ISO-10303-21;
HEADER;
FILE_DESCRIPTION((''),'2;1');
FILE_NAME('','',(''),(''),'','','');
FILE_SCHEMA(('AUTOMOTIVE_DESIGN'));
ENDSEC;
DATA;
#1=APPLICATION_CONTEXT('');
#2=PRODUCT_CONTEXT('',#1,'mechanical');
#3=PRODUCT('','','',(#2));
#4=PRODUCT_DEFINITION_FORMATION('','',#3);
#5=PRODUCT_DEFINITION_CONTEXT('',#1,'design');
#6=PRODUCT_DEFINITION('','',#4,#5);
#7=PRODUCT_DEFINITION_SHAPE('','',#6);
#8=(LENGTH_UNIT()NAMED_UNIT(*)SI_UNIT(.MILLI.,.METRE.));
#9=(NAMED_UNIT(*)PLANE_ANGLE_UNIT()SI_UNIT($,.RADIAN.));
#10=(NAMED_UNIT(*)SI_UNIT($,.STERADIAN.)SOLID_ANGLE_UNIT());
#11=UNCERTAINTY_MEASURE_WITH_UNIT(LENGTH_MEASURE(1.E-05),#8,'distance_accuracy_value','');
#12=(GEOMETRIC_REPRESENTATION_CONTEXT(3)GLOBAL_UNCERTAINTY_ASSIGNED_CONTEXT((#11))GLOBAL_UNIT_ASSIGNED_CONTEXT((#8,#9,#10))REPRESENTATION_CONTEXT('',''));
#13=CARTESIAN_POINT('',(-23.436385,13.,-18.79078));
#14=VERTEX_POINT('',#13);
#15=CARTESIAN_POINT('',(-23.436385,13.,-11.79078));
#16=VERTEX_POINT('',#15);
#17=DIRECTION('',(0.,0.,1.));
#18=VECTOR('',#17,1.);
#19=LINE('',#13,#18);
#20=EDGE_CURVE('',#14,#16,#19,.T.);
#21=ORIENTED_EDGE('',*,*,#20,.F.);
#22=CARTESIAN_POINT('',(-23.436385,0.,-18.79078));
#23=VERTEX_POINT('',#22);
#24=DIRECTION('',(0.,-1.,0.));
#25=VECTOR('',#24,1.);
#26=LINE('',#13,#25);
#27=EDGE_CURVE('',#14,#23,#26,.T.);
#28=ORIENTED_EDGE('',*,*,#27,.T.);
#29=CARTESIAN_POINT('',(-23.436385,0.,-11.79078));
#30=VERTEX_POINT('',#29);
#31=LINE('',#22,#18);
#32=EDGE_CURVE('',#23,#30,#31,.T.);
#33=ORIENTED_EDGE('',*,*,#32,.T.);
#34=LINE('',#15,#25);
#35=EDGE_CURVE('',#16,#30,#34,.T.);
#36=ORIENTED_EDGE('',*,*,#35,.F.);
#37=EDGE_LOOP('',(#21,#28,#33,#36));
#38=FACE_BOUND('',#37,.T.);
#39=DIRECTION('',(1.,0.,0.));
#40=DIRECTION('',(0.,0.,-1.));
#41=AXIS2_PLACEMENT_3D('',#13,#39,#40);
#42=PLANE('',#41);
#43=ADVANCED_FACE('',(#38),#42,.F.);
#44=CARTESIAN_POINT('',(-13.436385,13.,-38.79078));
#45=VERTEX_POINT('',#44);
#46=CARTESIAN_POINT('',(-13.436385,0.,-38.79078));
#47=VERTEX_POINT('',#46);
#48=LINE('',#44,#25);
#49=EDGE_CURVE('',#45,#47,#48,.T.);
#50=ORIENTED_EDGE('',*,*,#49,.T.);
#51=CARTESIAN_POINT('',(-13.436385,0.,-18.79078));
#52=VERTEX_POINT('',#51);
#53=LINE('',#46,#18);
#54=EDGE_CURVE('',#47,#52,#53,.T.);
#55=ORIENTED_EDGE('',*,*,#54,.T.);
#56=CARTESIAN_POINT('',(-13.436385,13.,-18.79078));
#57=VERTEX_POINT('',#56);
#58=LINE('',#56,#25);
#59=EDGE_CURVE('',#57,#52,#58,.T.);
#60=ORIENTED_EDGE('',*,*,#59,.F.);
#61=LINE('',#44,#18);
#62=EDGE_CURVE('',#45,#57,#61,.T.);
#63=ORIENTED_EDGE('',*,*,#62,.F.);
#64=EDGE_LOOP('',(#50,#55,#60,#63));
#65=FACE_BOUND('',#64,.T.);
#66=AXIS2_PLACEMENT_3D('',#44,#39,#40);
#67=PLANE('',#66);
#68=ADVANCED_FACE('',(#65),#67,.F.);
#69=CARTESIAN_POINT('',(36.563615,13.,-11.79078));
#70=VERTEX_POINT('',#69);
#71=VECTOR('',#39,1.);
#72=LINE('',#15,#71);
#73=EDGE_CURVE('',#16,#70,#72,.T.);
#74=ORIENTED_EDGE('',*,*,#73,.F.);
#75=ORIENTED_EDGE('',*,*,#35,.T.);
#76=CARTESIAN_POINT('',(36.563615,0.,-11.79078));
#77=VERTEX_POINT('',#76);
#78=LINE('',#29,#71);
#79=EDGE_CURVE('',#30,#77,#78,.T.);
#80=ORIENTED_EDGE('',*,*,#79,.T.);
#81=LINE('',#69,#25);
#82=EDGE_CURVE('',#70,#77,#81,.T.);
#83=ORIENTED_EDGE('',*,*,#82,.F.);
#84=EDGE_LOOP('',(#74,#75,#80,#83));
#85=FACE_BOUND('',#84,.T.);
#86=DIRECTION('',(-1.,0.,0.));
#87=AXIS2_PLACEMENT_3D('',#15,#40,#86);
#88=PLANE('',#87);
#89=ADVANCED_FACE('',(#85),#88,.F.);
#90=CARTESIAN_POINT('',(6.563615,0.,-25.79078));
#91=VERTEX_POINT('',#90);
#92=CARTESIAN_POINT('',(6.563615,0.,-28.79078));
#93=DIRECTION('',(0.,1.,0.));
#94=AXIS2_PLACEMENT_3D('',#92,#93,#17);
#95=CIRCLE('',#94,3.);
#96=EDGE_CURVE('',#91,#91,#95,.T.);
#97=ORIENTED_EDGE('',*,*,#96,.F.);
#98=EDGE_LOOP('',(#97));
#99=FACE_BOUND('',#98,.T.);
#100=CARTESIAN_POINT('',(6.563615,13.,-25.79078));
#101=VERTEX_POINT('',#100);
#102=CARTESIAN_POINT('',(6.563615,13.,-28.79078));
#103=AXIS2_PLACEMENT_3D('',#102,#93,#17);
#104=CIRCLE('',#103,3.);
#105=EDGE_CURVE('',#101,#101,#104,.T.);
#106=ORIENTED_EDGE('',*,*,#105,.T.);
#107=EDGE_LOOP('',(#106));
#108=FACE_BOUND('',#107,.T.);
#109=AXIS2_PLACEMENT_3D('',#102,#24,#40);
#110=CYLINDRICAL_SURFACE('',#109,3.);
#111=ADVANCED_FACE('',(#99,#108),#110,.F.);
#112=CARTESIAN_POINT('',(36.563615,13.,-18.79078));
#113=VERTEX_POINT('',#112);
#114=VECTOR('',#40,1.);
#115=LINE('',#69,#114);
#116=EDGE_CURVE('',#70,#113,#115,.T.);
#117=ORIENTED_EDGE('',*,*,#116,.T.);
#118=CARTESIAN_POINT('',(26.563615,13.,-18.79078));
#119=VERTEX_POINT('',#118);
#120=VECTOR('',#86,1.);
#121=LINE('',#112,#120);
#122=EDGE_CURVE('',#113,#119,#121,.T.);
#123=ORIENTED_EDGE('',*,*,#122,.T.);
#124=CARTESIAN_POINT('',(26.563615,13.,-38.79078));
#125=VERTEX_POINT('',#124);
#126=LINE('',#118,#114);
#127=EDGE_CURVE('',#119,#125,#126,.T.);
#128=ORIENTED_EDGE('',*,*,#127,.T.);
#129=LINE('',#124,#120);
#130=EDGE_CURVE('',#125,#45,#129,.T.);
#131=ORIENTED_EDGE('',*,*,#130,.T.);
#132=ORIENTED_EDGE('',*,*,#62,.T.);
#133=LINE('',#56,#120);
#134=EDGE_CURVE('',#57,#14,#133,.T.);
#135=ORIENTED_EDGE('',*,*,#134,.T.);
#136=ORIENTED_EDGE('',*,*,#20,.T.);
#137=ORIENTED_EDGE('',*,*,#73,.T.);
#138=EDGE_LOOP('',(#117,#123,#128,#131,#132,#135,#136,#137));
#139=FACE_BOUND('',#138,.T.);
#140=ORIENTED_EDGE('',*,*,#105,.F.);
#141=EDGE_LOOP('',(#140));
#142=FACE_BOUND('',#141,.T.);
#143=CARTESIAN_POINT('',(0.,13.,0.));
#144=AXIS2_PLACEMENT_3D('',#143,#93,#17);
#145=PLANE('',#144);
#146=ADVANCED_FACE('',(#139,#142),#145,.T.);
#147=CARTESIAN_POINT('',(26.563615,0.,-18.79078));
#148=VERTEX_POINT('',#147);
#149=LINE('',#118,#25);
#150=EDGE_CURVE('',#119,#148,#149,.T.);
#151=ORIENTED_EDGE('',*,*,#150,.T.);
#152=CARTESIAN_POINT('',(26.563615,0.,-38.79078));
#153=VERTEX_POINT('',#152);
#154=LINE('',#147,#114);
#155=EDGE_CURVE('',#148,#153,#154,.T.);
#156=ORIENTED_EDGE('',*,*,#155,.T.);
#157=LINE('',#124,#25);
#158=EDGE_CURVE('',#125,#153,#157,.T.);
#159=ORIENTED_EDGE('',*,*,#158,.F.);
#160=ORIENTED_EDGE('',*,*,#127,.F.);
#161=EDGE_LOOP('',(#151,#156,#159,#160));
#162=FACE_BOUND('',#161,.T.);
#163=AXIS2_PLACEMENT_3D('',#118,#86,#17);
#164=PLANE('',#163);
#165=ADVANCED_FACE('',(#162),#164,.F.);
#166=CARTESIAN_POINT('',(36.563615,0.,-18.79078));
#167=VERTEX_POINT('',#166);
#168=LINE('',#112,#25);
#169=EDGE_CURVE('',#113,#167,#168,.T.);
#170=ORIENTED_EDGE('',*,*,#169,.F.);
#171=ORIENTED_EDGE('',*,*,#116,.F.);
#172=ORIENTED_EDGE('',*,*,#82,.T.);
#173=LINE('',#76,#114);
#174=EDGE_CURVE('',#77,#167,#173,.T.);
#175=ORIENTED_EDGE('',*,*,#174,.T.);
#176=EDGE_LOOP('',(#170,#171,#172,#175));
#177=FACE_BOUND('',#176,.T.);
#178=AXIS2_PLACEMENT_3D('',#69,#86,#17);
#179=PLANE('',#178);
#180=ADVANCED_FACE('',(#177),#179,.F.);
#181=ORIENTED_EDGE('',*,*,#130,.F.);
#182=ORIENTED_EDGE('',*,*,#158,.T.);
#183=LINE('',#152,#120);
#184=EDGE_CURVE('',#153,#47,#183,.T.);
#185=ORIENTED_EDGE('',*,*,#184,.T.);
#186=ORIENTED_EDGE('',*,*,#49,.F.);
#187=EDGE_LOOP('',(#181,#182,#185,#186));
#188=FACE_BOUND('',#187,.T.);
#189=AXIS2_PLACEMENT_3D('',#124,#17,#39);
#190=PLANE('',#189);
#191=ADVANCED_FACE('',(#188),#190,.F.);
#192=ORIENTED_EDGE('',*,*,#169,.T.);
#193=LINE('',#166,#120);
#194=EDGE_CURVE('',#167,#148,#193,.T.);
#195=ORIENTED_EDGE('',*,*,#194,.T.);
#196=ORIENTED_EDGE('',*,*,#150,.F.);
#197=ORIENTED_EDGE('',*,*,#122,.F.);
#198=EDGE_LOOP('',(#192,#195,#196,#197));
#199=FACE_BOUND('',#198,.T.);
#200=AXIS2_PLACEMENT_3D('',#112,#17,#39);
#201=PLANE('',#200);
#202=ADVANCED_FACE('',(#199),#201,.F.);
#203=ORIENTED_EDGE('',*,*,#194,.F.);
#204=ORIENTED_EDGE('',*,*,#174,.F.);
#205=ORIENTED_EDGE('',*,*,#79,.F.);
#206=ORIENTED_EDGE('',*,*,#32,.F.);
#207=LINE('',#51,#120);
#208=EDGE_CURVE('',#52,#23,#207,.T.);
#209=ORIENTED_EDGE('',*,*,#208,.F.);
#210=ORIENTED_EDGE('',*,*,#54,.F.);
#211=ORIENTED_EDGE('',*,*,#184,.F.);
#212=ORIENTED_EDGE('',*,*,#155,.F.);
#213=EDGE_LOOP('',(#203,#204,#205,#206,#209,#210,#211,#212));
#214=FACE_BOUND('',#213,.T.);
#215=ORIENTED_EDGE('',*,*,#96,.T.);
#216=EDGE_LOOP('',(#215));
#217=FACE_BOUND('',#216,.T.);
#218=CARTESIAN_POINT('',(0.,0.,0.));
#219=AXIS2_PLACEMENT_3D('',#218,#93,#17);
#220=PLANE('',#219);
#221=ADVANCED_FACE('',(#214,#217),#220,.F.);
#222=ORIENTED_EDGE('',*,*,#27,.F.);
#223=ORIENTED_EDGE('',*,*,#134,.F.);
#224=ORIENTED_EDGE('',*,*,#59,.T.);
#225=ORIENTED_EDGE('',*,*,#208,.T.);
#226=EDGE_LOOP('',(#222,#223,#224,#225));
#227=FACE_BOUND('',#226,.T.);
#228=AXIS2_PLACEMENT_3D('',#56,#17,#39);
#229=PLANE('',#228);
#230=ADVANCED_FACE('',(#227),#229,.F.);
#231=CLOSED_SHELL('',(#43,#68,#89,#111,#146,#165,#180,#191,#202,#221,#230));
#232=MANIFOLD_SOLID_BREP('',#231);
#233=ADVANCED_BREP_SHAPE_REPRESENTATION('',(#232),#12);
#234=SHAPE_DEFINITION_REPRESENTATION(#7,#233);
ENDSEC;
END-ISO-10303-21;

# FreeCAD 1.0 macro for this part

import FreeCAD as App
import Part
import Sketcher

V = App.Vector


def add_polygon(sketch, points):
    """Adds a closed chain of lines whose ends are joined by coincident constraints."""
    first, n = sketch.GeometryCount, len(points)
    for a, b in zip(points, points[1:] + points[:1]):
        sketch.addGeometry(Part.LineSegment(App.Vector(*a, 0), App.Vector(*b, 0)), False)
    for i in range(n):
        sketch.addConstraint(Sketcher.Constraint("Coincident", first + i, 2, first + (i + 1) % n, 1))

doc = App.newDocument("Part")
params = doc.addObject("Spreadsheet::Sheet", "Params")
for row, (alias, value) in enumerate([
    ("sketch1_diameter", "6 mm"),
    ("sketch1_width", "60 mm"),
    ("sketch1_width2", "10 mm"),
    ("sketch1_height", "7 mm"),
    ("sketch1_height2", "20 mm"),
    ("pad1_length", "13 mm"),
], start=1):
    params.set(f"A{row}", alias)
    params.set(f"B{row}", "=" + value)
    params.setAlias(f"B{row}", alias)

body = doc.addObject("PartDesign::Body", "Body")

# Sketch on XZ plane
sketch1 = body.newObject("Sketcher::SketchObject", "Sketch")
sketch1.AttachmentSupport = (doc.getObject("XZ_Plane"), [""])
sketch1.MapMode = "FlatFace"
add_polygon(sketch1, [(-23.4, -11.8), (36.6, -11.8), (36.6, -18.8), (26.6, -18.8), (26.6, -38.8), (-13.4, -38.8), (-13.4, -18.8), (-23.4, -18.8)])  # lines 0-7
sketch1.addGeometry(Part.Circle(V(6.6, -28.8, 0), V(0, 0, 1), 3), False)  # 8
sketch1.addConstraint([
    Sketcher.Constraint("Horizontal", 0),
    Sketcher.Constraint("Vertical", 1),
    Sketcher.Constraint("Horizontal", 2),
    Sketcher.Constraint("Vertical", 3),
    Sketcher.Constraint("Horizontal", 4),
    Sketcher.Constraint("Vertical", 5),
    Sketcher.Constraint("Horizontal", 6),
    Sketcher.Constraint("Vertical", 7),
    Sketcher.Constraint("Horizontal", 2, 2, 5, 2),
    Sketcher.Constraint("Equal", 2, 6),
    Sketcher.Constraint("Diameter", 8, 6.0),
    Sketcher.Constraint("DistanceX", 0, 1, 0, 2, 60.0),
    Sketcher.Constraint("DistanceX", 2, 2, 2, 1, 10.0),
    Sketcher.Constraint("DistanceY", 1, 2, 1, 1, 7.0),
    Sketcher.Constraint("DistanceY", 3, 2, 3, 1, 20.0),
    Sketcher.Constraint("DistanceX", 8, 3, 0, 2, 30.0),
    Sketcher.Constraint("DistanceY", 8, 3, 0, 2, 17.0),
    Sketcher.Constraint("DistanceY", 8, 3, -1, 1, 28.79078),
    Sketcher.Constraint("DistanceX", -1, 1, 8, 3, 6.563615),
])
sketch1.setExpression("Constraints[18]", "Params.sketch1_diameter")
sketch1.setExpression("Constraints[19]", "Params.sketch1_width")
sketch1.setExpression("Constraints[20]", "Params.sketch1_width2")
sketch1.setExpression("Constraints[21]", "Params.sketch1_height")
sketch1.setExpression("Constraints[22]", "Params.sketch1_height2")
pad1 = body.newObject("PartDesign::Pad", "Pad")
pad1.Profile = sketch1
pad1.setExpression("Length", "Params.pad1_length")
pad1.Reversed = True

doc.recompute()
